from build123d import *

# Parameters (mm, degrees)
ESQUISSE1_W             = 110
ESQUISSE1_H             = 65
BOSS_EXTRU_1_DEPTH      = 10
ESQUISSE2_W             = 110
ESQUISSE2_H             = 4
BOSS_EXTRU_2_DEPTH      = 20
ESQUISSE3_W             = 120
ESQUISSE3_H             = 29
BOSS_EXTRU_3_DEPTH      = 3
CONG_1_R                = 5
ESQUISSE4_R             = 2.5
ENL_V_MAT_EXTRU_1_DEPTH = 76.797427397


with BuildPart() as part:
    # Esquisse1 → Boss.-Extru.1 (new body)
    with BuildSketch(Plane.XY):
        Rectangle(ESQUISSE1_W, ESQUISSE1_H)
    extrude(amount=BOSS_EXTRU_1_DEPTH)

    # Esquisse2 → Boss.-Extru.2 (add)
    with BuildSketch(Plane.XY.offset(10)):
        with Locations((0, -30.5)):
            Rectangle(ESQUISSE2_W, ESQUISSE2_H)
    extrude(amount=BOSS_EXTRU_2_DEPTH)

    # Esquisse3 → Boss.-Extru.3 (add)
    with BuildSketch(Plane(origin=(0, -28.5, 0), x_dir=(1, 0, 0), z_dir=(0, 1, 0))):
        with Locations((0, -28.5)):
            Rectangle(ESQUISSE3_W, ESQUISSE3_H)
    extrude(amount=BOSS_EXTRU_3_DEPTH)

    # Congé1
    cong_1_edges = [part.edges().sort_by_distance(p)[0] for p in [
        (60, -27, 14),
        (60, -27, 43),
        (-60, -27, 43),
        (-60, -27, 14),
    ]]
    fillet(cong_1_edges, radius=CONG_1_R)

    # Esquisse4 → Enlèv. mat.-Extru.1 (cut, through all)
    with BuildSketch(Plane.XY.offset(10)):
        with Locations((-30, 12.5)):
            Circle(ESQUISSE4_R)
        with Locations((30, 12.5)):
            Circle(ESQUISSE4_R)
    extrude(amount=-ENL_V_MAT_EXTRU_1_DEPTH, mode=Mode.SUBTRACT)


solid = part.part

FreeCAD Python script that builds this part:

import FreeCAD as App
import Part
import Sketcher
from FreeCAD import Vector


def edges_at(feature, points):
    """Names of the edges that pass closest to the given points."""
    edges = feature.Shape.Edges
    near = lambda p: min(range(len(edges)), key=lambda i: edges[i].distToShape(Part.Vertex(*p))[0])
    return sorted({f"Edge{near(p) + 1}" for p in points})


def add_polygon(sketch, points):
    """Adds a closed chain of lines whose ends are joined by coincident constraints."""
    first, n = sketch.GeometryCount, len(points)
    for a, b in zip(points, points[1:] + points[:1]):
        sketch.addGeometry(Part.LineSegment(App.Vector(*a, 0), App.Vector(*b, 0)), False)
    for i in range(n):
        sketch.addConstraint(Sketcher.Constraint("Coincident", first + i, 2, first + (i + 1) % n, 1))

doc = App.newDocument("Part")
body = doc.addObject("PartDesign::Body", "Body")

# Sketch on XY plane
sketch1 = doc.addObject("Sketcher::SketchObject", "Sketch")
body.addObject(sketch1)
sketch1.AttachmentSupport = (doc.XY_Plane, [""])
sketch1.MapMode = "FlatFace"
add_polygon(sketch1, [(-55, 32.5), (-55, -32.5), (55, -32.5), (55, 32.5)])  # lines 0-3
sketch1.addConstraint([
    Sketcher.Constraint("Vertical", 0),
    Sketcher.Constraint("Horizontal", 1),
    Sketcher.Constraint("Vertical", 2),
    Sketcher.Constraint("Horizontal", 3),
    Sketcher.Constraint("Symmetric", 0, 2, 2, 2, -1, 1),
    Sketcher.Constraint("DistanceX", 1, 1, 1, 2, 110.0),
    Sketcher.Constraint("DistanceY", 0, 2, 0, 1, 65.0),
])
pad1 = doc.addObject("PartDesign::Pad", "Pad")
body.addObject(pad1)
pad1.Profile = sketch1
pad1.Length = 10

# Sketch on XY plane
sketch2 = doc.addObject("Sketcher::SketchObject", "Sketch001")
body.addObject(sketch2)
sketch2.AttachmentSupport = (doc.XY_Plane, [""])
sketch2.MapMode = "FlatFace"
sketch2.AttachmentOffset = App.Placement(Vector(0, 0, 10), App.Rotation())
add_polygon(sketch2, [(-55, -28.5), (-55, -32.5), (55, -32.5), (55, -28.5)])  # lines 0-3
sketch2.addConstraint([
    Sketcher.Constraint("Vertical", 0),
    Sketcher.Constraint("Horizontal", 1),
    Sketcher.Constraint("Vertical", 2),
    Sketcher.Constraint("Horizontal", 3),
    Sketcher.Constraint("DistanceX", 1, 1, 1, 2, 110.0),
    Sketcher.Constraint("DistanceY", 0, 2, 0, 1, 4.0),
    Sketcher.Constraint("DistanceX", 0, 2, -1, 1, 55.0),
    Sketcher.Constraint("DistanceY", 0, 2, -1, 1, 32.5),
])
pad2 = doc.addObject("PartDesign::Pad", "Pad001")
body.addObject(pad2)
pad2.Profile = sketch2
pad2.Length = 20

# Sketch on XZ plane
sketch3 = doc.addObject("Sketcher::SketchObject", "Sketch002")
body.addObject(sketch3)
sketch3.AttachmentSupport = (doc.XZ_Plane, [""])
sketch3.MapMode = "FlatFace"
sketch3.AttachmentOffset = App.Placement(Vector(0, 0, 28.5), App.Rotation())
add_polygon(sketch3, [(-60, 14), (-60, 43), (60, 43), (60, 14)])  # lines 0-3
sketch3.addConstraint([
    Sketcher.Constraint("Vertical", 0),
    Sketcher.Constraint("Horizontal", 1),
    Sketcher.Constraint("Vertical", 2),
    Sketcher.Constraint("Horizontal", 3),
    Sketcher.Constraint("DistanceX", 1, 1, 1, 2, 120.0),
    Sketcher.Constraint("DistanceY", 0, 1, 0, 2, 29.0),
    Sketcher.Constraint("DistanceX", 0, 2, -1, 1, 60.0),
    Sketcher.Constraint("DistanceY", -1, 1, 0, 2, 43.0),
])
pad3 = doc.addObject("PartDesign::Pad", "Pad002")
body.addObject(pad3)
pad3.Profile = sketch3
pad3.Length = 3
pad3.Reversed = True
doc.recompute()

fillet = doc.addObject("PartDesign::Fillet", "Fillet")
body.addObject(fillet)
fillet.Base = (pad3, edges_at(pad3, [
    (60, -27, 14),
    (60, -27, 43),
    (-60, -27, 43),
    (-60, -27, 14),
]))
fillet.Radius = 5

# Sketch on XY plane
sketch4 = doc.addObject("Sketcher::SketchObject", "Sketch003")
body.addObject(sketch4)
sketch4.AttachmentSupport = (doc.XY_Plane, [""])
sketch4.MapMode = "FlatFace"
sketch4.AttachmentOffset = App.Placement(Vector(0, 0, 10), App.Rotation())
sketch4.addGeometry([
    Part.Circle(Vector(-30, 12.5, 0), Vector(0, 0, 1), 2.5),
    Part.Circle(Vector(30, 12.5, 0), Vector(0, 0, 1), 2.5),
], False)
sketch4.addConstraint([
    Sketcher.Constraint("Equal", 0, 1),
    Sketcher.Constraint("Symmetric", 0, 3, 1, 3, -2),
    Sketcher.Constraint("Diameter", 0, 5.0),
    Sketcher.Constraint("DistanceX", 0, 3, -1, 1, 30.0),
    Sketcher.Constraint("DistanceY", -1, 1, 0, 3, 12.5),
])
pocket1 = doc.addObject("PartDesign::Pocket", "Pocket")
body.addObject(pocket1)
pocket1.Profile = sketch4
pocket1.Type = "ThroughAll"

doc.recompute()
